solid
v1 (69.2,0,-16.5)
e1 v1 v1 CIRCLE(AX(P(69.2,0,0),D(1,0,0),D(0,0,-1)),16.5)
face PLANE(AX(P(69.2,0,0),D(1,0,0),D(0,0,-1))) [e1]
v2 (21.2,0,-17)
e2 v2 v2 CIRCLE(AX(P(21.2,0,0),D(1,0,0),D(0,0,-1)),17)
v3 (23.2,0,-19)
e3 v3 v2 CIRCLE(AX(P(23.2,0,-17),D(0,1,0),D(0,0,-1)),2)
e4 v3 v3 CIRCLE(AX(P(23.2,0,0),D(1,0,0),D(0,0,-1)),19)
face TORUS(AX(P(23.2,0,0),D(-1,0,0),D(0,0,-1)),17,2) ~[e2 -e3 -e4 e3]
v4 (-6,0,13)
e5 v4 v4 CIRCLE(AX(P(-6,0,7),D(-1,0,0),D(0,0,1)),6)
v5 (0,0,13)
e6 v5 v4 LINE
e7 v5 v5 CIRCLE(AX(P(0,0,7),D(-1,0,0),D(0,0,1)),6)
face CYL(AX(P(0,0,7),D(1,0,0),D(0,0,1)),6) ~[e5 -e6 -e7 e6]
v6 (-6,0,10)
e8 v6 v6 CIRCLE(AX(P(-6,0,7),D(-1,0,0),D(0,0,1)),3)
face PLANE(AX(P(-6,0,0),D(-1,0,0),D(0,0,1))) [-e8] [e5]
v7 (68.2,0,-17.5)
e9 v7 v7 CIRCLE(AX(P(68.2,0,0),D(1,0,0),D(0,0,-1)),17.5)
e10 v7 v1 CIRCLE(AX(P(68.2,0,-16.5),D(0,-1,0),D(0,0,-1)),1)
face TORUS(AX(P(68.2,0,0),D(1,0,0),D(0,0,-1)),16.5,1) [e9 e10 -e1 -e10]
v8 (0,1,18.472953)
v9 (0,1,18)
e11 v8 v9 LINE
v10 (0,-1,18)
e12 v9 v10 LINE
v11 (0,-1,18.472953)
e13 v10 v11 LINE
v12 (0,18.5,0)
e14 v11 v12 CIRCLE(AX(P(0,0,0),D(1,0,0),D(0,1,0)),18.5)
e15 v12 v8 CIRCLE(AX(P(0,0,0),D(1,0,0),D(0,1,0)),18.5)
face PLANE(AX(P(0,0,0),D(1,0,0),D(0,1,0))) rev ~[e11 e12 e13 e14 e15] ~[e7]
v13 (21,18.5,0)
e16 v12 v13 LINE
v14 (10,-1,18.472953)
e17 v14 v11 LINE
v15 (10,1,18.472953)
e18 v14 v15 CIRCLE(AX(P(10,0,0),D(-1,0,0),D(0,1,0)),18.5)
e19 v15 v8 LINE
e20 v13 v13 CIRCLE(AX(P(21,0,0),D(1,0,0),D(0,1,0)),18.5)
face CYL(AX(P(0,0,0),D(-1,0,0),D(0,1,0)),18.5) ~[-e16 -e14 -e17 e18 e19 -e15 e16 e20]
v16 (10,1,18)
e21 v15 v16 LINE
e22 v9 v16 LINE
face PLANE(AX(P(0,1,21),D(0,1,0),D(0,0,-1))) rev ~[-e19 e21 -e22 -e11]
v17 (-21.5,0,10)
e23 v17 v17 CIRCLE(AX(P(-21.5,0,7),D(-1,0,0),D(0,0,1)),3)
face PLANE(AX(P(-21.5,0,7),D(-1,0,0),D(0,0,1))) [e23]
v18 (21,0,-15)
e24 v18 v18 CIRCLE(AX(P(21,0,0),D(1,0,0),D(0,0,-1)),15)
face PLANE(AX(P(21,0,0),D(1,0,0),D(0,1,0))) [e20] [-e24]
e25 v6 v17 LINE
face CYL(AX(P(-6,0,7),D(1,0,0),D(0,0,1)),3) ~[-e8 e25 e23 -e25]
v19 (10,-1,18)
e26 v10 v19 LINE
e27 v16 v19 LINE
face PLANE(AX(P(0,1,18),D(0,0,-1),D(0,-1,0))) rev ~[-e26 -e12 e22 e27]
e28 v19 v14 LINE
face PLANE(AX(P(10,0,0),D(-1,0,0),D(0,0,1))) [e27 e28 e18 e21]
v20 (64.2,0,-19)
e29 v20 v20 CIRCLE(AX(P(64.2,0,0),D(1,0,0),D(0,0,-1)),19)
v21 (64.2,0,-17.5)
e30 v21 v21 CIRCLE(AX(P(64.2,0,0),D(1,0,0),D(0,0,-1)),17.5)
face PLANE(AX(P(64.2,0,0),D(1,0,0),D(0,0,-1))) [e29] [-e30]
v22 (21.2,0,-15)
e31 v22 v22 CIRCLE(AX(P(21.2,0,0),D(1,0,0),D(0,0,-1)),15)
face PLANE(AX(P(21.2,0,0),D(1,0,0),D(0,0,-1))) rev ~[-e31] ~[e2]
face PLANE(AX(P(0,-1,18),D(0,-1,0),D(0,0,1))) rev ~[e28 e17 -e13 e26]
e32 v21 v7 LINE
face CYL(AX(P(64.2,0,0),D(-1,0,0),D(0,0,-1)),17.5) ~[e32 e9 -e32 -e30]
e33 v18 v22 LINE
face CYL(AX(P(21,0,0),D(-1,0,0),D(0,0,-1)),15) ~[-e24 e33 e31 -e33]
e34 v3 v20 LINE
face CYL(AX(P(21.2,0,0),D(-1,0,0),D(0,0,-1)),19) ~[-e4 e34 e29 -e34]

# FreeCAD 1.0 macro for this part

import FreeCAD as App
import Part
import Sketcher


def edges_at(feature, points):
    """Names of the edges that pass closest to the given points."""
    edges = feature.Shape.Edges
    near = lambda p: min(range(len(edges)), key=lambda i: edges[i].distToShape(Part.Vertex(*p))[0])
    return sorted({f"Edge{near(p) + 1}" for p in points})


def add_polygon(sketch, points):
    """Adds a closed chain of lines whose ends are joined by coincident constraints."""
    first, n = sketch.GeometryCount, len(points)
    for a, b in zip(points, points[1:] + points[:1]):
        sketch.addGeometry(Part.LineSegment(App.Vector(*a, 0), App.Vector(*b, 0)), False)
    for i in range(n):
        sketch.addConstraint(Sketcher.Constraint("Coincident", first + i, 2, first + (i + 1) % n, 1))

doc = App.newDocument("Part")
body = doc.addObject("PartDesign::Body", "Body")

# Sketch on YZ plane
sketch1 = body.newObject("Sketcher::SketchObject", "Sketch")
sketch1.AttachmentSupport = (doc.getObject("YZ_Plane"), [""])
sketch1.MapMode = "FlatFace"
sketch1.addGeometry(Part.Circle(App.Vector(0, 0, 0), App.Vector(0, 0, 1), 18), False)
sketch1.addConstraint([
    Sketcher.Constraint("Coincident", 0, 3, -1, 1),
    Sketcher.Constraint("Diameter", 0, 37.0),
])
pad1 = body.newObject("PartDesign::Pad", "Pad")
pad1.Profile = sketch1
pad1.Length = 21

# Sketch on YZ plane
sketch2 = body.newObject("Sketcher::SketchObject", "Sketch001")
sketch2.AttachmentSupport = (doc.getObject("YZ_Plane"), [""])
sketch2.MapMode = "FlatFace"
sketch2.AttachmentOffset = App.Placement(App.Vector(0, 0, 21), App.Rotation())
sketch2.addGeometry(Part.Circle(App.Vector(0, 0, 0), App.Vector(0, 0, 1), 15), False)
sketch2.addConstraint([
    Sketcher.Constraint("Coincident", 0, 3, -1, 1),
    Sketcher.Constraint("Diameter", 0, 30.0),
])
pad2 = body.newObject("PartDesign::Pad", "Pad001")
pad2.Profile = sketch2
pad2.Length = 0.2

# Sketch on YZ plane
sketch3 = body.newObject("Sketcher::SketchObject", "Sketch002")
sketch3.AttachmentSupport = (doc.getObject("YZ_Plane"), [""])
sketch3.MapMode = "FlatFace"
sketch3.AttachmentOffset = App.Placement(App.Vector(0, 0, 21.2), App.Rotation())
sketch3.addGeometry(Part.Circle(App.Vector(0, 0, 0), App.Vector(0, 0, 1), 19), False)
sketch3.addConstraint([
    Sketcher.Constraint("Coincident", 0, 3, -1, 1),
    Sketcher.Constraint("Diameter", 0, 38.0),
])
pad3 = body.newObject("PartDesign::Pad", "Pad002")
pad3.Profile = sketch3
pad3.Length = 43
doc.recompute()

fillet = body.newObject("PartDesign::Fillet", "Fillet")
fillet.Base = (pad3, edges_at(pad3, [(21.2, 0, 19)]))
fillet.Radius = 2

# Sketch on YZ plane
sketch4 = body.newObject("Sketcher::SketchObject", "Sketch003")
sketch4.AttachmentSupport = (doc.getObject("YZ_Plane"), [""])
sketch4.MapMode = "FlatFace"
sketch4.AttachmentOffset = App.Placement(App.Vector(0, 0, 64.2), App.Rotation())
sketch4.addGeometry(Part.Circle(App.Vector(0, 0, 0), App.Vector(0, 0, 1), 18), False)
sketch4.addConstraint([
    Sketcher.Constraint("Coincident", 0, 3, -1, 1),
    Sketcher.Constraint("Diameter", 0, 35.0),
])
pad4 = body.newObject("PartDesign::Pad", "Pad003")
pad4.Profile = sketch4
pad4.Length = 5
doc.recompute()

fillet2 = body.newObject("PartDesign::Fillet", "Fillet001")
fillet2.Base = (pad4, edges_at(pad4, [(69.2, 0, 17.5)]))
fillet2.Radius = 1

# Sketch on YZ plane
sketch5 = body.newObject("Sketcher::SketchObject", "Sketch004")
sketch5.AttachmentSupport = (doc.getObject("YZ_Plane"), [""])
sketch5.MapMode = "FlatFace"
sketch5.addGeometry(Part.Circle(App.Vector(0, 7, 0), App.Vector(0, 0, 1), 6), False)
sketch5.addConstraint([
    Sketcher.Constraint("PointOnObject", 0, 3, -2),
    Sketcher.Constraint("Diameter", 0, 12.0),
    Sketcher.Constraint("DistanceY", -1, 1, 0, 3, 7.0),
])
pad5 = body.newObject("PartDesign::Pad", "Pad004")
pad5.Profile = sketch5
pad5.Length = 6
pad5.Reversed = True

# Sketch on YZ plane
sketch6 = body.newObject("Sketcher::SketchObject", "Sketch005")
sketch6.AttachmentSupport = (doc.getObject("YZ_Plane"), [""])
sketch6.MapMode = "FlatFace"
sketch6.AttachmentOffset = App.Placement(App.Vector(0, 0, -6), App.Rotation())
sketch6.addGeometry(Part.Circle(App.Vector(0, 7, 0), App.Vector(0, 0, 1), 3), False)
sketch6.addConstraint([
    Sketcher.Constraint("PointOnObject", 0, 3, -2),
    Sketcher.Constraint("Diameter", 0, 6.0),
    Sketcher.Constraint("DistanceY", -1, 1, 0, 3, 7.0),
])
pad6 = body.newObject("PartDesign::Pad", "Pad005")
pad6.Profile = sketch6
pad6.Length = 15.5
pad6.Reversed = True

# Sketch on YZ plane
sketch7 = body.newObject("Sketcher::SketchObject", "Sketch006")
sketch7.AttachmentSupport = (doc.getObject("YZ_Plane"), [""])
sketch7.MapMode = "FlatFace"
add_polygon(sketch7, [(-1, 21), (1, 21), (1, 18), (-1, 18)])  # lines 0-3
sketch7.addConstraint([
    Sketcher.Constraint("Horizontal", 0),
    Sketcher.Constraint("Vertical", 1),
    Sketcher.Constraint("Horizontal", 2),
    Sketcher.Constraint("Vertical", 3),
    Sketcher.Constraint("DistanceX", 0, 1, 0, 2, 2.0),
    Sketcher.Constraint("DistanceY", 1, 2, 1, 1, 3.0),
    Sketcher.Constraint("DistanceY", -1, 1, 1, 2, 18.0),
    Sketcher.Constraint("DistanceX", -1, 1, 0, 2, 1.0),
])
pocket1 = body.newObject("PartDesign::Pocket", "Pocket")
pocket1.Profile = sketch7
pocket1.Length = 10
pocket1.Reversed = True

doc.recompute()
